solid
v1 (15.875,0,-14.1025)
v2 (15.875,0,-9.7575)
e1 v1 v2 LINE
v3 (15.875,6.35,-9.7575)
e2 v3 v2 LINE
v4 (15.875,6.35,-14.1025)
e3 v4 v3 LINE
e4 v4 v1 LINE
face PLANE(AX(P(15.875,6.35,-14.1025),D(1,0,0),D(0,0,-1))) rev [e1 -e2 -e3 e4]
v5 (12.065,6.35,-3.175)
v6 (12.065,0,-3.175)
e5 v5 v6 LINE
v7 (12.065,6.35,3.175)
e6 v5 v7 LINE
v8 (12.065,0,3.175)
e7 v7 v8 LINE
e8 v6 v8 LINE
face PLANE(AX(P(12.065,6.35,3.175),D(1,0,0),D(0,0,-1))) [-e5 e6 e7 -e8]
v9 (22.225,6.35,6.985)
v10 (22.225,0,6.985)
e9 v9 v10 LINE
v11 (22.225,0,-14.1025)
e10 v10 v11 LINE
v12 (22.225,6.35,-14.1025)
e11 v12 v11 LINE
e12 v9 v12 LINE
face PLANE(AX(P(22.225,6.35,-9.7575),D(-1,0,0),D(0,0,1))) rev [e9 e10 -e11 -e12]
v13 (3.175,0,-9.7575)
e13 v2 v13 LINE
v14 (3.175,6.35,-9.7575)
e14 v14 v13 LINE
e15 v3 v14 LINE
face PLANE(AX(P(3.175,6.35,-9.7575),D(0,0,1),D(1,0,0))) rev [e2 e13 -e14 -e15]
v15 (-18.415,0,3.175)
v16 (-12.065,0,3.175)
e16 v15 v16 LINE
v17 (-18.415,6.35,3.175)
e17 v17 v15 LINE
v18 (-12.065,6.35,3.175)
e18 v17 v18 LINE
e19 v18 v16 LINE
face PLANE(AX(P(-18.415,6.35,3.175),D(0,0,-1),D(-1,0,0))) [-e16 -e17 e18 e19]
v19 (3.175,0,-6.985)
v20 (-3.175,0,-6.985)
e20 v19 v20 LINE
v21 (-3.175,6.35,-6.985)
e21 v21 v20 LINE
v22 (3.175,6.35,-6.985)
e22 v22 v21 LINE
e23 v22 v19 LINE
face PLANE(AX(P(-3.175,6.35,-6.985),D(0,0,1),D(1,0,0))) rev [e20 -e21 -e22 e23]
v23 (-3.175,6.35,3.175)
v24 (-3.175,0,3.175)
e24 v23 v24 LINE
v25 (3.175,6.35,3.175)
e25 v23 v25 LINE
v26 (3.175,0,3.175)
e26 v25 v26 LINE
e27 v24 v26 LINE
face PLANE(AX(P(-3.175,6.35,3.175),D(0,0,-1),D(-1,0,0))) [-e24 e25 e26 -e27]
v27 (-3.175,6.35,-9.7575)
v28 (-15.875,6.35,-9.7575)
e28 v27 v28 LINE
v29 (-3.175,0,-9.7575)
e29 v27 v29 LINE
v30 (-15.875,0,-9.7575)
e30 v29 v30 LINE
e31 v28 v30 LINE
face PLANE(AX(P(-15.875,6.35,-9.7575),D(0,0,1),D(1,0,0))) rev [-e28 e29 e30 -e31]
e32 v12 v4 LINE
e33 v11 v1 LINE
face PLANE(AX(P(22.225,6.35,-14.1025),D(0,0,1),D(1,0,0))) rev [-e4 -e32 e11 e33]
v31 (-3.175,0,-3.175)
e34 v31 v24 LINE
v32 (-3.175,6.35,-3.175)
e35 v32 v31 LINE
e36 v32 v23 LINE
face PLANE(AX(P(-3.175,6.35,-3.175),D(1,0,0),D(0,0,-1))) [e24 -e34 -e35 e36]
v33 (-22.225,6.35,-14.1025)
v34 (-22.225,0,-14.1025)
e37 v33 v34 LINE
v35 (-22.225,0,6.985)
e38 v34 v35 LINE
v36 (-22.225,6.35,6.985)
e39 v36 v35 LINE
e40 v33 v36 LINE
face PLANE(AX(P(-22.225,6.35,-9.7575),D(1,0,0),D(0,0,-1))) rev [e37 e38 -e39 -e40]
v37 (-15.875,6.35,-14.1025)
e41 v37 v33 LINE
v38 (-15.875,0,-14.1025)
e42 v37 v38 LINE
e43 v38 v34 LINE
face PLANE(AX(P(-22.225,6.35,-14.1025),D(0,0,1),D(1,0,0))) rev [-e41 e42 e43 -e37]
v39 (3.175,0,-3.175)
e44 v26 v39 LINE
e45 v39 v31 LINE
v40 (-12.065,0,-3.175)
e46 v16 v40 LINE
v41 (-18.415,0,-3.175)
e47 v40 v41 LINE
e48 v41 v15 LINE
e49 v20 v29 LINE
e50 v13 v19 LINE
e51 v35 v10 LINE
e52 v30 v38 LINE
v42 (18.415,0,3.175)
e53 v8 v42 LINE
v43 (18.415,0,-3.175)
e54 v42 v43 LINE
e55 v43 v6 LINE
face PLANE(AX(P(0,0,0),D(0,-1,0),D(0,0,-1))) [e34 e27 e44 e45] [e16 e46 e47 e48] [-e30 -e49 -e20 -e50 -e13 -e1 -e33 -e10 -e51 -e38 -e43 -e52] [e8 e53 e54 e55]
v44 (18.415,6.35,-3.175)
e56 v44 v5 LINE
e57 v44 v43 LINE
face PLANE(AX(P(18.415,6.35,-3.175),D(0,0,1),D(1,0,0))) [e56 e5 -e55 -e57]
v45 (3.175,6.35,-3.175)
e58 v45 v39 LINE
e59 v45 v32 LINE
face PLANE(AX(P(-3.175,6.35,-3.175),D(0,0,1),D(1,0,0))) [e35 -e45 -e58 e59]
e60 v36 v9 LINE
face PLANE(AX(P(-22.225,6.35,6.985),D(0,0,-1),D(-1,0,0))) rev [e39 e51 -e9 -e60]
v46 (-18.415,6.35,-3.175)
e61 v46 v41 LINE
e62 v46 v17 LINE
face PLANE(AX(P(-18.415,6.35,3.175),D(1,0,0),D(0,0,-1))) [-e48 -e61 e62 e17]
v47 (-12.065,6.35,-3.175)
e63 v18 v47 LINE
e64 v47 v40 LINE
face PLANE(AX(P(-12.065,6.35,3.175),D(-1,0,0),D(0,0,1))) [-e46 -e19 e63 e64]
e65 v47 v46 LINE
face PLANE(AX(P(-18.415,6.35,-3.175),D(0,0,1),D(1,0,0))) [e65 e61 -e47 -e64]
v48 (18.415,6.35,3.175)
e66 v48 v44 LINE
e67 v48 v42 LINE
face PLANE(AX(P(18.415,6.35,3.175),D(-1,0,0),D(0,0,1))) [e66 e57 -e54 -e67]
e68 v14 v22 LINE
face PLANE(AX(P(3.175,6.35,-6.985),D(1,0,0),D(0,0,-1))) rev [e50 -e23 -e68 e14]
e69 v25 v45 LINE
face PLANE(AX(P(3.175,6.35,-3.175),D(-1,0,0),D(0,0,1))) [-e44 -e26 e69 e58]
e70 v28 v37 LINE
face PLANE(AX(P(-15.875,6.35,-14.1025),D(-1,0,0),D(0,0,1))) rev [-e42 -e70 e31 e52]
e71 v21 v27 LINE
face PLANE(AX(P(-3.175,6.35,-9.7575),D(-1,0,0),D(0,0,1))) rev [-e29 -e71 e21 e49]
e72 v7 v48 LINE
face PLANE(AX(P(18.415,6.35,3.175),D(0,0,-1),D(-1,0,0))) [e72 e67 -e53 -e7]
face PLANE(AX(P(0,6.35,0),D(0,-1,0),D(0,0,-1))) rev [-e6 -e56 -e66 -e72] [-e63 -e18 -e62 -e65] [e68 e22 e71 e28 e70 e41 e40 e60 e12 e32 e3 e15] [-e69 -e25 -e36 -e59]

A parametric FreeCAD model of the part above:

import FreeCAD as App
import Part
import Sketcher

V = App.Vector
Q = App.Units.Quantity

doc = App.newDocument("Part")
params = doc.addObject("Spreadsheet::Sheet", "Params")
for row, (alias, value) in enumerate([
    ("sketch1_width", "0.5 in"),
    ("pad1_length", "0.25 in"),
], start=1):
    params.set(f"A{row}", alias)
    params.set(f"B{row}", "=" + value)
    params.setAlias(f"B{row}", alias)

body = doc.addObject("PartDesign::Body", "Body")

# Sketch on XZ plane
sketch1 = doc.addObject("Sketcher::SketchObject", "Sketch")
body.addObject(sketch1)
sketch1.AttachmentSupport = (doc.XZ_Plane, [""])
sketch1.MapMode = "FlatFace"
sketch1.addGeometry([
    Part.LineSegment(V(-22.2, 7, 0), V(22.2, 7, 0)),  # 0
    Part.LineSegment(V(22.2, 7, 0), V(22.2, -14.1, 0)),  # 1
    Part.LineSegment(V(22.2, -14.1, 0), V(15.9, -14.1, 0)),  # 2
    Part.LineSegment(V(15.9, -14.1, 0), V(15.9, -9.8, 0)),  # 3
    Part.LineSegment(V(15.9, -9.8, 0), V(3.2, -9.8, 0)),  # 4
    Part.LineSegment(V(3.2, -9.8, 0), V(3.2, -7, 0)),  # 5
    Part.LineSegment(V(3.2, -7, 0), V(-3.2, -7, 0)),  # 6
    Part.LineSegment(V(-3.2, -7, 0), V(-3.2, -9.8, 0)),  # 7
    Part.LineSegment(V(-3.2, -9.8, 0), V(-15.9, -9.8, 0)),  # 8
    Part.LineSegment(V(-15.9, -9.8, 0), V(-15.9, -14.1, 0)),  # 9
    Part.LineSegment(V(-15.9, -14.1, 0), V(-22.2, -14.1, 0)),  # 10
    Part.LineSegment(V(-22.2, -14.1, 0), V(-22.2, 7, 0)),  # 11
    Part.LineSegment(V(-12.1, 3.2, 0), V(-18.4, 3.2, 0)),  # 12
    Part.LineSegment(V(-18.4, 3.2, 0), V(-18.4, -3.2, 0)),  # 13
    Part.LineSegment(V(-18.4, -3.2, 0), V(-12.1, -3.2, 0)),  # 14
    Part.LineSegment(V(-12.1, -3.2, 0), V(-12.1, 3.2, 0)),  # 15
    Part.LineSegment(V(3.2, 3.2, 0), V(-3.2, 3.2, 0)),  # 16
    Part.LineSegment(V(-3.2, 3.2, 0), V(-3.2, -3.2, 0)),  # 17
    Part.LineSegment(V(-3.2, -3.2, 0), V(3.2, -3.2, 0)),  # 18
    Part.LineSegment(V(3.2, -3.2, 0), V(3.2, 3.2, 0)),  # 19
    Part.LineSegment(V(18.4, 3.2, 0), V(12.1, 3.2, 0)),  # 20
    Part.LineSegment(V(12.1, 3.2, 0), V(12.1, -3.2, 0)),  # 21
    Part.LineSegment(V(12.1, -3.2, 0), V(18.4, -3.2, 0)),  # 22
    Part.LineSegment(V(18.4, -3.2, 0), V(18.4, 3.2, 0)),  # 23
], False)
sketch1.addConstraint([
    Sketcher.Constraint("Coincident", 0, 2, 1, 1),
    Sketcher.Constraint("Coincident", 1, 2, 2, 1),
    Sketcher.Constraint("Coincident", 2, 2, 3, 1),
    Sketcher.Constraint("Coincident", 3, 2, 4, 1),
    Sketcher.Constraint("Coincident", 4, 2, 5, 1),
    Sketcher.Constraint("Coincident", 5, 2, 6, 1),
    Sketcher.Constraint("Coincident", 6, 2, 7, 1),
    Sketcher.Constraint("Coincident", 7, 2, 8, 1),
    Sketcher.Constraint("Coincident", 8, 2, 9, 1),
    Sketcher.Constraint("Coincident", 9, 2, 10, 1),
    Sketcher.Constraint("Coincident", 10, 2, 11, 1),
    Sketcher.Constraint("Coincident", 11, 2, 0, 1),
    Sketcher.Constraint("Coincident", 12, 2, 13, 1),
    Sketcher.Constraint("Coincident", 13, 2, 14, 1),
    Sketcher.Constraint("Coincident", 14, 2, 15, 1),
    Sketcher.Constraint("Coincident", 15, 2, 12, 1),
    Sketcher.Constraint("Coincident", 16, 2, 17, 1),
    Sketcher.Constraint("Coincident", 17, 2, 18, 1),
    Sketcher.Constraint("Coincident", 18, 2, 19, 1),
    Sketcher.Constraint("Coincident", 19, 2, 16, 1),
    Sketcher.Constraint("Coincident", 20, 2, 21, 1),
    Sketcher.Constraint("Coincident", 21, 2, 22, 1),
    Sketcher.Constraint("Coincident", 22, 2, 23, 1),
    Sketcher.Constraint("Coincident", 23, 2, 20, 1),
    Sketcher.Constraint("Horizontal", 0),
    Sketcher.Constraint("Vertical", 1),
    Sketcher.Constraint("Horizontal", 2),
    Sketcher.Constraint("Vertical", 3),
    Sketcher.Constraint("Horizontal", 4),
    Sketcher.Constraint("Vertical", 5),
    Sketcher.Constraint("Horizontal", 6),
    Sketcher.Constraint("Vertical", 7),
    Sketcher.Constraint("Horizontal", 8),
    Sketcher.Constraint("Vertical", 9),
    Sketcher.Constraint("Horizontal", 10),
    Sketcher.Constraint("Vertical", 11),
    Sketcher.Constraint("Horizontal", 12),
    Sketcher.Constraint("Vertical", 13),
    Sketcher.Constraint("Horizontal", 14),
    Sketcher.Constraint("Vertical", 15),
    Sketcher.Constraint("Horizontal", 16),
    Sketcher.Constraint("Vertical", 17),
    Sketcher.Constraint("Horizontal", 18),
    Sketcher.Constraint("Vertical", 19),
    Sketcher.Constraint("Horizontal", 20),
    Sketcher.Constraint("Vertical", 21),
    Sketcher.Constraint("Horizontal", 22),
    Sketcher.Constraint("Vertical", 23),
    Sketcher.Constraint("Symmetric", 16, 2, 18, 2, -1, 1),
    Sketcher.Constraint("Symmetric", 14, 2, 20, 2, -1, 1),
    Sketcher.Constraint("Symmetric", 12, 2, 22, 2, -1, 1),
    Sketcher.Constraint("Symmetric", 4, 2, 7, 2, -2),
    Sketcher.Constraint("Symmetric", 2, 2, 9, 2, -2),
    Sketcher.Constraint("Horizontal", 15, 2, 16, 2),
    Sketcher.Constraint("Horizontal", 14, 2, 17, 2),
    Sketcher.Constraint("Vertical", 7, 2, 16, 2),
    Sketcher.Constraint("Equal", 2, 6),
    Sketcher.Constraint("Equal", 6, 10),
    Sketcher.Constraint("Equal", 10, 12),
    Sketcher.Constraint("Equal", 22, 13),
    Sketcher.Constraint("DistanceX", 4, 2, 4, 1, Q("0.5 in")),
    Sketcher.Constraint("DistanceX", 6, 2, 1, 2, Q("1 in")),
    Sketcher.Constraint("DistanceX", 12, 2, 8, 2, Q("0.1 in")),
    Sketcher.Constraint("DistanceY", 6, 2, 12, 2, Q("0.4 in")),
    Sketcher.Constraint("DistanceY", 13, 2, 11, 2, Q("0.4 in")),
    Sketcher.Constraint("DistanceY", 1, 2, 1, 1, 21.0875),
    Sketcher.Constraint("DistanceY", 3, 1, 3, 2, 4.345),
])
sketch1.setExpression("Constraints[60]", "Params.sketch1_width")
pad1 = doc.addObject("PartDesign::Pad", "Pad")
body.addObject(pad1)
pad1.Profile = sketch1
pad1.setExpression("Length", "Params.pad1_length")
pad1.Reversed = True

doc.recompute()
